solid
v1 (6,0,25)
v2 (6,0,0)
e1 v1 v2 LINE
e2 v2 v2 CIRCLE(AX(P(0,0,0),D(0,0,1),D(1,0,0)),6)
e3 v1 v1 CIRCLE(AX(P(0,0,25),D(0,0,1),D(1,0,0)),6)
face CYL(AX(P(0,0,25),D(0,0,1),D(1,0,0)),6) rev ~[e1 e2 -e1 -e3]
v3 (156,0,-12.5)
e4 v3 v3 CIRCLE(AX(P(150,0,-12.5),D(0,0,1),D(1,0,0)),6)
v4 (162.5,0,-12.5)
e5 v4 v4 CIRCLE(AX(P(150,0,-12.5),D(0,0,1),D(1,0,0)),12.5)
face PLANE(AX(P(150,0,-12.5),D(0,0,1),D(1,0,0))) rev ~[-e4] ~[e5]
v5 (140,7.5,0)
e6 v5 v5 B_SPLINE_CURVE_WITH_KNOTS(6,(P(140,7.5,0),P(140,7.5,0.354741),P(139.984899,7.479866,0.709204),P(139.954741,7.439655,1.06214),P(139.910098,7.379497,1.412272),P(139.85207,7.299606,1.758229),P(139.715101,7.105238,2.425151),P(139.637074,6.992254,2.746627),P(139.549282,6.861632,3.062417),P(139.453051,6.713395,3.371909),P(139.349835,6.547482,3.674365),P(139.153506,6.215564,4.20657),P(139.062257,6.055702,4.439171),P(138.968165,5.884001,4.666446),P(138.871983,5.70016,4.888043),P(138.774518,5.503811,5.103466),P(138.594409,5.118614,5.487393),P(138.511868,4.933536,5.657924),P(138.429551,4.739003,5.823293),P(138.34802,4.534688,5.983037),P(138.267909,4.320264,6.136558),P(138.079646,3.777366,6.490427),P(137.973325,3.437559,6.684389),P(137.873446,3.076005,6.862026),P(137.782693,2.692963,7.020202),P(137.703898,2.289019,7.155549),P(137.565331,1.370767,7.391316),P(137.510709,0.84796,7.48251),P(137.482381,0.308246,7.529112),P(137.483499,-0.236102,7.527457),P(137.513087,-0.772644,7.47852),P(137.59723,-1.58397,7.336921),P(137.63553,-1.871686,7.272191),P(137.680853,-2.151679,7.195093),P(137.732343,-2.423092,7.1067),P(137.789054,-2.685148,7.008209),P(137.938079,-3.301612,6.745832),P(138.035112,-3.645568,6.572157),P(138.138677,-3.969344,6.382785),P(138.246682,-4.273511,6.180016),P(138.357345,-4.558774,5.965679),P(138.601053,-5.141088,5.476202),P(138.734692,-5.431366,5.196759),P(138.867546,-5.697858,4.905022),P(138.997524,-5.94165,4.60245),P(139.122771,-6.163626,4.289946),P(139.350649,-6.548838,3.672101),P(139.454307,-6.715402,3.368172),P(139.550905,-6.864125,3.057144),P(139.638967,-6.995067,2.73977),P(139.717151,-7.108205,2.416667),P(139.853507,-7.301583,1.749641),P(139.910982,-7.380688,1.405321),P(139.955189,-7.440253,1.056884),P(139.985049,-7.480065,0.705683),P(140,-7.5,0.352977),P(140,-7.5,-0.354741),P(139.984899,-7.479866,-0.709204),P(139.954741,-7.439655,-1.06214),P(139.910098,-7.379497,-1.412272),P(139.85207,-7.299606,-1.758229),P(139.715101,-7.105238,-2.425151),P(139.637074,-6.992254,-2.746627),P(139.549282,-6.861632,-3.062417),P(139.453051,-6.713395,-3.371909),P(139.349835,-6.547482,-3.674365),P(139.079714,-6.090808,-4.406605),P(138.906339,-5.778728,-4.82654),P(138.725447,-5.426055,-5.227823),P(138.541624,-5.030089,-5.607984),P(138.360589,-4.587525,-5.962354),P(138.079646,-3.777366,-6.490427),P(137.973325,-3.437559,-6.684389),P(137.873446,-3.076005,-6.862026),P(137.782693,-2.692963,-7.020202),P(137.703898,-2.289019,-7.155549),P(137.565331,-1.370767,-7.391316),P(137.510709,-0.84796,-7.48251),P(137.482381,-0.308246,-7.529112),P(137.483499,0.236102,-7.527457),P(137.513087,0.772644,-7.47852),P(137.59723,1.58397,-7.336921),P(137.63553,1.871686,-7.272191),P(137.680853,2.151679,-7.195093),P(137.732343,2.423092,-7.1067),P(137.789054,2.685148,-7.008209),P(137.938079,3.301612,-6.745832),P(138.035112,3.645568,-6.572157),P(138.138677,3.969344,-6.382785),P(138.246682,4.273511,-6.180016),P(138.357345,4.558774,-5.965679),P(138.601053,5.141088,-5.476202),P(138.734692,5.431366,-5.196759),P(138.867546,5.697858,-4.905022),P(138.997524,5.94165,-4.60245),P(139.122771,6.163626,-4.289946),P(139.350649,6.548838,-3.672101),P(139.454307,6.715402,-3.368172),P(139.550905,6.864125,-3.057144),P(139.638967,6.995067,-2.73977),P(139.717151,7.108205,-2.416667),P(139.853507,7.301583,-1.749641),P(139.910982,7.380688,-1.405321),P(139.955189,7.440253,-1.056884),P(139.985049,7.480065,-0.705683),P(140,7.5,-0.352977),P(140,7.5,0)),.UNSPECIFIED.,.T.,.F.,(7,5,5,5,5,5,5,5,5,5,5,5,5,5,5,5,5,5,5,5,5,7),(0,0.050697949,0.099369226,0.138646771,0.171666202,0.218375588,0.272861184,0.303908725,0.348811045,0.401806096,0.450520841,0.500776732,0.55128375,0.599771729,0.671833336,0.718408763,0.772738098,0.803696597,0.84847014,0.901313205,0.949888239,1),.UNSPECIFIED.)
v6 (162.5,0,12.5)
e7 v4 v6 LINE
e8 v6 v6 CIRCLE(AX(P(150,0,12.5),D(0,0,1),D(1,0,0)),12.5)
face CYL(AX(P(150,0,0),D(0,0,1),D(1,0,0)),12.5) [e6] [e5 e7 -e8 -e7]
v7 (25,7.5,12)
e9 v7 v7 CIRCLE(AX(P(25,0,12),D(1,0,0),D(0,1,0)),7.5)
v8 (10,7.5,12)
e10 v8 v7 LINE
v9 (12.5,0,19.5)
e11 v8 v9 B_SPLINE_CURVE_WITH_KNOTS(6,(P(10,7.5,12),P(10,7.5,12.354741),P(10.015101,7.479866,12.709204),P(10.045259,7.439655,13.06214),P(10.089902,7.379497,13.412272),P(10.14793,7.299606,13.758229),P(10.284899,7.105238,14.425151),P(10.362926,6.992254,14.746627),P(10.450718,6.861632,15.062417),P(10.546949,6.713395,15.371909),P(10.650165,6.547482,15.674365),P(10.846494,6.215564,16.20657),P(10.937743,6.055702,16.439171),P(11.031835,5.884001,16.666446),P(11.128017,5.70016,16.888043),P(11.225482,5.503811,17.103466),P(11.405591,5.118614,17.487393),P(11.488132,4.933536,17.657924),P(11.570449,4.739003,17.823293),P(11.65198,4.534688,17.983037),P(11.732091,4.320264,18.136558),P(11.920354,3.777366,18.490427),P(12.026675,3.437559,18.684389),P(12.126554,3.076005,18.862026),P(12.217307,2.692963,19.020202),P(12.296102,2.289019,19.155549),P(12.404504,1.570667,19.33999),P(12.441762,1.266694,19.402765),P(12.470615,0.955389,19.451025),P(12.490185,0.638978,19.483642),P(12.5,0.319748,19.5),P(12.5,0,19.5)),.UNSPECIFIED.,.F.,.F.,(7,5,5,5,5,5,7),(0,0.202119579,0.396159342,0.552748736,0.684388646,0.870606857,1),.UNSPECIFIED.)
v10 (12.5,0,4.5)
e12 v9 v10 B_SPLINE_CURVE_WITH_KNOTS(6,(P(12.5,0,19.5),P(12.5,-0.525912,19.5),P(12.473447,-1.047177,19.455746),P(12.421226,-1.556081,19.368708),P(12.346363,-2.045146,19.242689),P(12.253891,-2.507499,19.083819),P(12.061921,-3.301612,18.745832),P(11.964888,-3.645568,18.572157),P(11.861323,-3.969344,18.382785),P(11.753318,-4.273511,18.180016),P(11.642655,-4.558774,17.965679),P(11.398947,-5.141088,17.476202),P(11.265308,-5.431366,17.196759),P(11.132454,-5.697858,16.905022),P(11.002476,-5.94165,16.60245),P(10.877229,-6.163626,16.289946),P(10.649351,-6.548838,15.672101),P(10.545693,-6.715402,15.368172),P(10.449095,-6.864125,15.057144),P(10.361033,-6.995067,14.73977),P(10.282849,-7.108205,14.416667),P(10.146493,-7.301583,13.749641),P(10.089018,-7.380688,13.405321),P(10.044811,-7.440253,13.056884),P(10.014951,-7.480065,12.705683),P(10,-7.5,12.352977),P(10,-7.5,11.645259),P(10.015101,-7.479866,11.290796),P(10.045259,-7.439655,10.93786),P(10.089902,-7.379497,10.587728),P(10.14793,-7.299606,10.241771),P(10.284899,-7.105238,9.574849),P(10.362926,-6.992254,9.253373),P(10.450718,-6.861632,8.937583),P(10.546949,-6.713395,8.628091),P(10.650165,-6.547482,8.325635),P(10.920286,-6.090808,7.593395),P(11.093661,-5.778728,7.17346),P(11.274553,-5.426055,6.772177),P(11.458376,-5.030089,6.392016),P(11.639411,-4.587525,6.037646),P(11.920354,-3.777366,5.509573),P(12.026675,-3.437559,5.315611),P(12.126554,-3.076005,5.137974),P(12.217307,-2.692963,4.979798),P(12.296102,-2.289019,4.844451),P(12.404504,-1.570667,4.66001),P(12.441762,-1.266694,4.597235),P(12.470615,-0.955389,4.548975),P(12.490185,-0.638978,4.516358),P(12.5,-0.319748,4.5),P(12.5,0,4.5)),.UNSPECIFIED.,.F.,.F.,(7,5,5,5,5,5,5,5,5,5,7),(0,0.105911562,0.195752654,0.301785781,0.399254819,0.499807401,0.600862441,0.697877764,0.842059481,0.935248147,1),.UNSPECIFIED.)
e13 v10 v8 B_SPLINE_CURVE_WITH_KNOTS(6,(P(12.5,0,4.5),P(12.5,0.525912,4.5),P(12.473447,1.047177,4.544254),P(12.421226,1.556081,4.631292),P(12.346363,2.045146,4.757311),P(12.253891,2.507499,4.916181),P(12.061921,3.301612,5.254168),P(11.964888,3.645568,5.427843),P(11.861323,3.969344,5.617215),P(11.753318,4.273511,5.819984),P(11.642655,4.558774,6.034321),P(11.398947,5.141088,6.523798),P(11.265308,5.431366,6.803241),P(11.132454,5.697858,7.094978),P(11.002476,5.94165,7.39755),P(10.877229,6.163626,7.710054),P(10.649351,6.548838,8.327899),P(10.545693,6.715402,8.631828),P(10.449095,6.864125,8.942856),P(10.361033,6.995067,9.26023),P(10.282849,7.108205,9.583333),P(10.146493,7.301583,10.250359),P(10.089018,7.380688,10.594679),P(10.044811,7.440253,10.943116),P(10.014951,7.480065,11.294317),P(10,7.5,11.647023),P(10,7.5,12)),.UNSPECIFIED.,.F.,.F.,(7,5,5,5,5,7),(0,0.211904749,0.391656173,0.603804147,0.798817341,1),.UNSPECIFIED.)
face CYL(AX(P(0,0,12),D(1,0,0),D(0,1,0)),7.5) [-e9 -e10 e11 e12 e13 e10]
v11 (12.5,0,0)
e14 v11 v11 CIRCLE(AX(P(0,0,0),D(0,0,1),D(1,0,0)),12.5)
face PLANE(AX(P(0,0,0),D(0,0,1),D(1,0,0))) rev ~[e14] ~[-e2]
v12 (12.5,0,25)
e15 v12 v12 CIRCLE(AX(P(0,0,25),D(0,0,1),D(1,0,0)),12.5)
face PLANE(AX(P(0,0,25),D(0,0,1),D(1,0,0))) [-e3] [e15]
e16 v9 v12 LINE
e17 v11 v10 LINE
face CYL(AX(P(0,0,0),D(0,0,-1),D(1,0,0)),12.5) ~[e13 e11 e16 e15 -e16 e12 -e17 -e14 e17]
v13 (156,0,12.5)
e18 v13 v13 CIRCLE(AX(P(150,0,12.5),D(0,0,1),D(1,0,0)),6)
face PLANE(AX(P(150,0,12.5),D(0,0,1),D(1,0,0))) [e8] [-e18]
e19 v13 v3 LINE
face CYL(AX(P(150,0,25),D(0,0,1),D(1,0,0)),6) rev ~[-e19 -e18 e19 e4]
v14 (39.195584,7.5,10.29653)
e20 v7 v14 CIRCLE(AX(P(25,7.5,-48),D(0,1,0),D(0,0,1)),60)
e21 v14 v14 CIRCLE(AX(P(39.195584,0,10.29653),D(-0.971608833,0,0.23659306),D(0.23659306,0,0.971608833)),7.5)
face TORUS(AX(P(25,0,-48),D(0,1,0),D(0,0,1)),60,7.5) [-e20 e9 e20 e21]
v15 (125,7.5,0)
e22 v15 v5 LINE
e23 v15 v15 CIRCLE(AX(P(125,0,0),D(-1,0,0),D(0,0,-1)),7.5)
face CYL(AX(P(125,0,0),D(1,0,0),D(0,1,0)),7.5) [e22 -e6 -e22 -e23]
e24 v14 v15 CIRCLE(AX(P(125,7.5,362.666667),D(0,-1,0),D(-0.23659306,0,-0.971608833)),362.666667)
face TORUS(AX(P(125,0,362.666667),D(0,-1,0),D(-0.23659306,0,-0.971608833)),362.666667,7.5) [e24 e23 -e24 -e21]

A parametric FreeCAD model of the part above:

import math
import FreeCAD as App
import Part
import Sketcher

V = App.Vector

doc = App.newDocument("Part")
body = doc.addObject("PartDesign::Body", "Body")

# Sketch on XY plane
sketch1 = body.newObject("Sketcher::SketchObject", "Sketch")
sketch1.AttachmentSupport = (doc.getObject("XY_Plane"), [""])
sketch1.MapMode = "FlatFace"
sketch1.addGeometry(Part.Circle(V(0, 0, 0), V(0, 0, 1), 12), False)
sketch1.addConstraint(Sketcher.Constraint("Coincident", 0, 3, -1, 1))
sketch1.addConstraint(Sketcher.Constraint("Diameter", 0, 25.0))
pad1 = body.newObject("PartDesign::Pad", "Pad")
pad1.Profile = sketch1
pad1.Length = 25
body2 = doc.addObject("PartDesign::Body", "Body001")

# Sketch on XY plane
sketch2 = body2.newObject("Sketcher::SketchObject", "Sketch001")
sketch2.AttachmentSupport = (doc.getObject("XY_Plane001"), [""])
sketch2.MapMode = "FlatFace"
sketch2.addGeometry(Part.Circle(V(150, 0, 0), V(0, 0, 1), 12), False)
sketch2.addConstraint(Sketcher.Constraint("PointOnObject", 0, 3, -1))
sketch2.addConstraint(Sketcher.Constraint("Diameter", 0, 25.0))
sketch2.addConstraint(Sketcher.Constraint("DistanceX", -1, 1, 0, 3, 150.0))
pad2 = body2.newObject("PartDesign::Pad", "Pad001")
pad2.Profile = sketch2
pad2.Length = 25
pad2.Midplane = True
body.AllowCompound = True
doc.recompute()

boolean = body.newObject("PartDesign::Boolean", "Boolean")
boolean.Type = "Fuse"
boolean.addObjects([body2])

# Sketch on YZ plane
sketch3 = body.newObject("Sketcher::SketchObject", "Sketch002")
sketch3.AttachmentSupport = (doc.getObject("YZ_Plane"), [""])
sketch3.MapMode = "FlatFace"
sketch3.addGeometry(Part.Circle(V(0, 12, 0), V(0, 0, 1), 8), False)
sketch3.addConstraint(Sketcher.Constraint("PointOnObject", 0, 3, -2))
sketch3.addConstraint(Sketcher.Constraint("Diameter", 0, 15.0))
sketch3.addConstraint(Sketcher.Constraint("DistanceY", -1, 1, 0, 3, 12.0))

# Sketch on XZ plane
sketch4 = body.newObject("Sketcher::SketchObject", "Sketch003")
sketch4.AttachmentSupport = (doc.getObject("XZ_Plane"), [""])
sketch4.MapMode = "FlatFace"
sketch4.addGeometry(Part.LineSegment(V(0, 12, 0), V(25, 12, 0)), False)
sketch4.addGeometry(Part.ArcOfCircle(Part.Circle(V(25, -48, 0), V(0, 0, 1), 60), math.radians(76.31), math.radians(90)), False)
sketch4.addGeometry(Part.ArcOfCircle(Part.Circle(V(125, 363, 0), V(0, 0, 1), 363), math.radians(-103.69), math.radians(-90)), False)
sketch4.addGeometry(Part.LineSegment(V(125, 0, 0), V(150, 0, 0)), False)
sketch4.addConstraint(Sketcher.Constraint("Tangent", 0, 2, 1, 2))
sketch4.addConstraint(Sketcher.Constraint("Tangent", 1, 1, 2, 1))
sketch4.addConstraint(Sketcher.Constraint("Tangent", 2, 2, 3, 1))
sketch4.addConstraint(Sketcher.Constraint("Horizontal", 0))
sketch4.addConstraint(Sketcher.Constraint("Horizontal", 3))
sketch4.addConstraint(Sketcher.Constraint("PointOnObject", 0, 1, -2))
sketch4.addConstraint(Sketcher.Constraint("PointOnObject", 2, 2, -1))
sketch4.addConstraint(Sketcher.Constraint("Equal", 0, 3))
sketch4.addConstraint(Sketcher.Constraint("Radius", 1, 60.0))
sketch4.addConstraint(Sketcher.Constraint("DistanceX", 0, 1, 0, 2, 25.0))
sketch4.addConstraint(Sketcher.Constraint("DistanceY", 1, 3, -1, 1, 48.0))
sketch4.addConstraint(Sketcher.Constraint("DistanceX", -1, 1, 2, 3, 125.0))
doc.recompute()

additivepipe = body.newObject("PartDesign::AdditivePipe", "AdditivePipe")
additivepipe.Profile = sketch3
additivepipe.Spine = (sketch4, ["Edge1", "Edge2", "Edge3", "Edge4"])

# Sketch on XY plane
sketch5 = body.newObject("Sketcher::SketchObject", "Sketch004")
sketch5.AttachmentSupport = (doc.getObject("XY_Plane"), [""])
sketch5.MapMode = "FlatFace"
sketch5.AttachmentOffset = App.Placement(V(0, 0, 25), App.Rotation())
sketch5.addGeometry(Part.Circle(V(0, 0, 0), V(0, 0, 1), 6), False)
sketch5.addGeometry(Part.Circle(V(150, 0, 0), V(0, 0, 1), 6), False)
sketch5.addConstraint(Sketcher.Constraint("Coincident", 0, 3, -1, 1))
sketch5.addConstraint(Sketcher.Constraint("Equal", 0, 1))
sketch5.addConstraint(Sketcher.Constraint("PointOnObject", 1, 3, -1))
sketch5.addConstraint(Sketcher.Constraint("Diameter", 0, 12.0))
sketch5.addConstraint(Sketcher.Constraint("DistanceX", -1, 1, 1, 3, 150.0))
pocket1 = body.newObject("PartDesign::Pocket", "Pocket")
pocket1.Profile = sketch5
pocket1.Type = "ThroughAll"

doc.recompute()
